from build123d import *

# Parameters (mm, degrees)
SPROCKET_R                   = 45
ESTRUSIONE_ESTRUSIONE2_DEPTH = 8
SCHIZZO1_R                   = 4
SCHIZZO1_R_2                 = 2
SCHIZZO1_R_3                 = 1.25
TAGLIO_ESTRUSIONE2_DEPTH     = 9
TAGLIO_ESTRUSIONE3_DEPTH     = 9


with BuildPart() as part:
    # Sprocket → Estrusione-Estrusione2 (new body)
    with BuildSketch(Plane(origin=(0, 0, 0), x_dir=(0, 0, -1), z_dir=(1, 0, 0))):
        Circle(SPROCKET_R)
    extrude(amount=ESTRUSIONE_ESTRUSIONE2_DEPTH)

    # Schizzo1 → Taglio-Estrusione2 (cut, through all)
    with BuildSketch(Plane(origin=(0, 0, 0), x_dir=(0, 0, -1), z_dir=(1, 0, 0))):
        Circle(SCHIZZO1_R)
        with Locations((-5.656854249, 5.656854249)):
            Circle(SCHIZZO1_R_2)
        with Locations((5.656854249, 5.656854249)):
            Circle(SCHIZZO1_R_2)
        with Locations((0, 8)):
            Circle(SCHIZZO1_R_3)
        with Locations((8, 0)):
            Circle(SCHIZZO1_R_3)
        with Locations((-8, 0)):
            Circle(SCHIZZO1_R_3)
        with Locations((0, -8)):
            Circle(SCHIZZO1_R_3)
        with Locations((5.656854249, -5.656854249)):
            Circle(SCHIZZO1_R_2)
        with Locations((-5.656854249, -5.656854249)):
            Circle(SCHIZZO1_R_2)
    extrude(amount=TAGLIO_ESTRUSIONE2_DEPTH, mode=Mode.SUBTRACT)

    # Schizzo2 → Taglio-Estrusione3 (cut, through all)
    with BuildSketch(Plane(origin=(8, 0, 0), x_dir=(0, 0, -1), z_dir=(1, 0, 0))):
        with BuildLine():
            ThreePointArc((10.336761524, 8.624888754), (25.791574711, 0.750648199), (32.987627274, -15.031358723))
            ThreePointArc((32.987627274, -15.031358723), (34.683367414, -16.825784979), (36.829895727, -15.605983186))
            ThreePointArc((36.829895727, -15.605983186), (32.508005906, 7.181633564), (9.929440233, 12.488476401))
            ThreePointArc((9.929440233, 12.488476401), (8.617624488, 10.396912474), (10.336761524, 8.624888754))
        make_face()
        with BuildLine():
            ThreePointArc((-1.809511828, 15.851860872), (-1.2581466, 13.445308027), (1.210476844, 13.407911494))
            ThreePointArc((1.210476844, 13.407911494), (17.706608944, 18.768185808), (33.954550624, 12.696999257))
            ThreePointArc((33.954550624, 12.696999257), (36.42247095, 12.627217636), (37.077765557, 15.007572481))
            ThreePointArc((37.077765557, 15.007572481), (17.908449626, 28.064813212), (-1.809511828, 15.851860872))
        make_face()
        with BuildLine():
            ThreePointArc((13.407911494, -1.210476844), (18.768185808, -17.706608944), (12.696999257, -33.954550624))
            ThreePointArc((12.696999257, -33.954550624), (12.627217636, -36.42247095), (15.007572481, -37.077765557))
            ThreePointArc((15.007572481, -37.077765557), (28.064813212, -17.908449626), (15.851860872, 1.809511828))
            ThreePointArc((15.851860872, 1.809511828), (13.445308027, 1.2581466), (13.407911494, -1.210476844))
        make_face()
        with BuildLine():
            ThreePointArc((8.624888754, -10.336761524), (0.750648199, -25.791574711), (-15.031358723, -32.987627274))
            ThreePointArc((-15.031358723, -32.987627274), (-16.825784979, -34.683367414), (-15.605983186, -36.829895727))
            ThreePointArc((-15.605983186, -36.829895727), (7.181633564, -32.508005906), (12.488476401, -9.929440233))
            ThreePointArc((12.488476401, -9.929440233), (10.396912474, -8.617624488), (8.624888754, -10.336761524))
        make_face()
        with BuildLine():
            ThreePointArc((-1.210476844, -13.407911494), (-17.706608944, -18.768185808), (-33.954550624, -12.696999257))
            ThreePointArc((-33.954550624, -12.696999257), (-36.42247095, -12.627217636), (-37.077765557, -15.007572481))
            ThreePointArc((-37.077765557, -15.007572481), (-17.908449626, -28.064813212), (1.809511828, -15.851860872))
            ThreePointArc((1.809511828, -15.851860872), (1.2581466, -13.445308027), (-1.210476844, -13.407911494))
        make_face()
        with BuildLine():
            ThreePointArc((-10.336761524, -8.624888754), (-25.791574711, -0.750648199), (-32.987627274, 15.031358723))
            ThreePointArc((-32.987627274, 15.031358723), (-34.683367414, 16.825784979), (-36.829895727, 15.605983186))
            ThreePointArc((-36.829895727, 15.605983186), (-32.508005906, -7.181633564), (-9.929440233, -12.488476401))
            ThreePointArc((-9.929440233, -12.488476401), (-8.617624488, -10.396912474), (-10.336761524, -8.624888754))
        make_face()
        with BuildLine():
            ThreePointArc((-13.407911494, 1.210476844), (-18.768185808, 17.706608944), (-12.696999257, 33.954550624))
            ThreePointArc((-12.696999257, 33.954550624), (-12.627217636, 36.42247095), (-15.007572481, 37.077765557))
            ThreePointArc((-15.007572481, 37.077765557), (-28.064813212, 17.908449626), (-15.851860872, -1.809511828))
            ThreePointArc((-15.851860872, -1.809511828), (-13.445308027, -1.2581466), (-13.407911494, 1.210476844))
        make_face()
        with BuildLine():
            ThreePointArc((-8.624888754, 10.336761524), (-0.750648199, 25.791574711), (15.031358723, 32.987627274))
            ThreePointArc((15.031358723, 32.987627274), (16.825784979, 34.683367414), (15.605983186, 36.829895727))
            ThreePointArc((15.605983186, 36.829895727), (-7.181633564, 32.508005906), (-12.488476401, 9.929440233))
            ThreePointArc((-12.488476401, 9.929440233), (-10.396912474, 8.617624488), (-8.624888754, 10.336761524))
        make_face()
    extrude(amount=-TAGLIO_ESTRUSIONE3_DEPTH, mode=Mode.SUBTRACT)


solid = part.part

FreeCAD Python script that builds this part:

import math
import FreeCAD as App
import Part
import Sketcher
from FreeCAD import Vector

doc = App.newDocument("Part")
body = doc.addObject("PartDesign::Body", "Body")

sketch1 = body.newObject("Sketcher::SketchObject", "Sketch")
sketch1.AttachmentSupport = (doc.getObject("YZ_Plane"), [""])
sketch1.MapMode = "FlatFace"
sketch1.addGeometry(Part.Circle(Vector(0, 0, 0), Vector(0, 0, 1), 45), False)
sketch1.addConstraint([
    Sketcher.Constraint("Coincident", 0, 3, -1, 1),
    Sketcher.Constraint("Diameter", 0, 90.0),
])
pad1 = body.newObject("PartDesign::Pad", "Pad")
pad1.Profile = sketch1
pad1.Length = 8

sketch2 = body.newObject("Sketcher::SketchObject", "Sketch001")
sketch2.AttachmentSupport = (doc.getObject("YZ_Plane"), [""])
sketch2.MapMode = "FlatFace"
sketch2.addGeometry([
    Part.Circle(Vector(0, 0, 0), Vector(0, 0, 1), 4),
    Part.Circle(Vector(5.7, 5.7, 0), Vector(0, 0, 1), 2),
    Part.Circle(Vector(5.7, -5.7, 0), Vector(0, 0, 1), 2),
    Part.Circle(Vector(8, 0, 0), Vector(0, 0, 1), 1.2),
    Part.Circle(Vector(0, -8, 0), Vector(0, 0, 1), 1.2),
    Part.Circle(Vector(0, 8, 0), Vector(0, 0, 1), 1.2),
    Part.Circle(Vector(-8, 0, 0), Vector(0, 0, 1), 1.2),
    Part.Circle(Vector(-5.7, -5.7, 0), Vector(0, 0, 1), 2),
    Part.Circle(Vector(-5.7, 5.7, 0), Vector(0, 0, 1), 2),
], False)
sketch2.addConstraint([
    Sketcher.Constraint("Coincident", 0, 3, -1, 1),
    Sketcher.Constraint("Equal", 1, 2),
    Sketcher.Constraint("Equal", 3, 4),
    Sketcher.Constraint("Equal", 4, 5),
    Sketcher.Constraint("Equal", 5, 6),
    Sketcher.Constraint("Equal", 2, 7),
    Sketcher.Constraint("Equal", 7, 8),
    Sketcher.Constraint("Symmetric", 4, 3, 5, 3, -1, 1),
    Sketcher.Constraint("Symmetric", 3, 3, 6, 3, -1, 1),
    Sketcher.Constraint("Symmetric", 1, 3, 7, 3, -1, 1),
    Sketcher.Constraint("Symmetric", 2, 3, 8, 3, -1, 1),
    Sketcher.Constraint("Symmetric", 2, 3, 7, 3, -2),
    Sketcher.Constraint("PointOnObject", 3, 3, -1),
    Sketcher.Constraint("PointOnObject", 4, 3, -2),
    Sketcher.Constraint("Diameter", 0, 8.0),
    Sketcher.Constraint("Diameter", 1, 4.0),
    Sketcher.Constraint("Diameter", 3, 2.5),
    Sketcher.Constraint("DistanceX", -1, 1, 3, 3, 8.0),
    Sketcher.Constraint("DistanceY", 4, 3, -1, 1, 8.0),
    Sketcher.Constraint("DistanceY", 2, 3, 1, 3, 11.313708),
    Sketcher.Constraint("DistanceX", 7, 3, 2, 3, 11.313708),
])
pocket1 = body.newObject("PartDesign::Pocket", "Pocket")
pocket1.Profile = sketch2
pocket1.Type = "ThroughAll"
pocket1.Reversed = True

sketch3 = body.newObject("Sketcher::SketchObject", "Sketch002")
sketch3.AttachmentSupport = (doc.getObject("YZ_Plane"), [""])
sketch3.MapMode = "FlatFace"
sketch3.AttachmentOffset = App.Placement(Vector(0, 0, 8), App.Rotation())
sketch3.addGeometry([
    Part.ArcOfCircle(Part.Circle(Vector(-17.4, -6.8, 0), Vector(0, 0, 1), 26.3), math.radians(-85), math.radians(-8)),
    Part.ArcOfCircle(Part.Circle(Vector(-14.8, -35, 0), Vector(0, 0, 1), 2), math.radians(95), math.radians(248)),
    Part.ArcOfCircle(Part.Circle(Vector(-7.5, -17.1, 0), Vector(0, 0, 1), 21.3), math.radians(-112), math.radians(20)),
    Part.ArcOfCircle(Part.Circle(Vector(10.6, -10.6, 0), Vector(0, 0, 1), 2), math.radians(20), math.radians(172)),
    Part.ArcOfCircle(Part.Circle(Vector(15, 0, 0), Vector(0, 0, 1), 2), math.radians(65), math.radians(217)),
    Part.ArcOfCircle(Part.Circle(Vector(-7.5, -17.1, 0), Vector(0, 0, 1), 26.3), math.radians(-40), math.radians(37)),
    Part.ArcOfCircle(Part.Circle(Vector(14.2, -35.2, 0), Vector(0, 0, 1), 2), math.radians(140), math.radians(293)),
    Part.ArcOfCircle(Part.Circle(Vector(6.8, -17.4, 0), Vector(0, 0, 1), 21.3), math.radians(-67), math.radians(65)),
    Part.ArcOfCircle(Part.Circle(Vector(-17.1, 7.5, 0), Vector(0, 0, 1), 26.3), math.radians(-130), math.radians(-53)),
    Part.ArcOfCircle(Part.Circle(Vector(-35.2, -14.2, 0), Vector(0, 0, 1), 2), math.radians(50), math.radians(203)),
    Part.ArcOfCircle(Part.Circle(Vector(-17.4, -6.8, 0), Vector(0, 0, 1), 21.3), math.radians(-157), math.radians(-25)),
    Part.ArcOfCircle(Part.Circle(Vector(0, -15, 0), Vector(0, 0, 1), 2), math.radians(-25), math.radians(127)),
    Part.ArcOfCircle(Part.Circle(Vector(-6.8, 17.4, 0), Vector(0, 0, 1), 26.3), math.radians(-175), math.radians(-98)),
    Part.ArcOfCircle(Part.Circle(Vector(-35, 14.8, 0), Vector(0, 0, 1), 2), math.radians(5), math.radians(158)),
    Part.ArcOfCircle(Part.Circle(Vector(-17.1, 7.5, 0), Vector(0, 0, 1), 21.3), math.radians(158), math.radians(290)),
    Part.ArcOfCircle(Part.Circle(Vector(-10.6, -10.6, 0), Vector(0, 0, 1), 2), math.radians(-70), math.radians(82)),
    Part.ArcOfCircle(Part.Circle(Vector(7.5, 17.1, 0), Vector(0, 0, 1), 26.3), math.radians(140), math.radians(217)),
    Part.ArcOfCircle(Part.Circle(Vector(-14.2, 35.2, 0), Vector(0, 0, 1), 2), math.radians(-40), math.radians(113)),
    Part.ArcOfCircle(Part.Circle(Vector(-6.8, 17.4, 0), Vector(0, 0, 1), 21.3), math.radians(113), math.radians(245)),
    Part.ArcOfCircle(Part.Circle(Vector(-15, 0, 0), Vector(0, 0, 1), 2), math.radians(-115), math.radians(37)),
    Part.ArcOfCircle(Part.Circle(Vector(17.4, 6.8, 0), Vector(0, 0, 1), 26.3), math.radians(95), math.radians(172)),
    Part.ArcOfCircle(Part.Circle(Vector(14.8, 35, 0), Vector(0, 0, 1), 2), math.radians(-85), math.radians(68)),
    Part.ArcOfCircle(Part.Circle(Vector(7.5, 17.1, 0), Vector(0, 0, 1), 21.3), math.radians(68), math.radians(200)),
    Part.ArcOfCircle(Part.Circle(Vector(-10.6, 10.6, 0), Vector(0, 0, 1), 2), math.radians(-160), math.radians(-8)),
    Part.ArcOfCircle(Part.Circle(Vector(17.1, -7.5, 0), Vector(0, 0, 1), 26.3), math.radians(50), math.radians(127)),
    Part.ArcOfCircle(Part.Circle(Vector(35.2, 14.2, 0), Vector(0, 0, 1), 2), math.radians(-130), math.radians(23)),
    Part.ArcOfCircle(Part.Circle(Vector(17.4, 6.8, 0), Vector(0, 0, 1), 21.3), math.radians(23), math.radians(155)),
    Part.ArcOfCircle(Part.Circle(Vector(0, 15, 0), Vector(0, 0, 1), 2), math.radians(155), math.radians(307)),
    Part.ArcOfCircle(Part.Circle(Vector(6.8, -17.4, 0), Vector(0, 0, 1), 26.3), math.radians(5), math.radians(82)),
    Part.ArcOfCircle(Part.Circle(Vector(35, -14.8, 0), Vector(0, 0, 1), 2), math.radians(-175), math.radians(-22)),
    Part.ArcOfCircle(Part.Circle(Vector(17.1, -7.5, 0), Vector(0, 0, 1), 21.3), math.radians(-22), math.radians(110)),
    Part.ArcOfCircle(Part.Circle(Vector(10.6, 10.6, 0), Vector(0, 0, 1), 2), math.radians(110), math.radians(262)),
], False)
sketch3.addConstraint([
    Sketcher.Constraint("Tangent", 0, 1, 1, 1),
    Sketcher.Constraint("Tangent", 1, 2, 2, 1),
    Sketcher.Constraint("Tangent", 2, 2, 3, 1),
    Sketcher.Constraint("Tangent", 3, 2, 0, 2),
    Sketcher.Constraint("Tangent", 4, 2, 5, 2),
    Sketcher.Constraint("Tangent", 5, 1, 6, 1),
    Sketcher.Constraint("Tangent", 6, 2, 7, 1),
    Sketcher.Constraint("Tangent", 7, 2, 4, 1),
    Sketcher.Constraint("Tangent", 8, 1, 9, 1),
    Sketcher.Constraint("Tangent", 9, 2, 10, 1),
    Sketcher.Constraint("Tangent", 10, 2, 11, 1),
    Sketcher.Constraint("Tangent", 11, 2, 8, 2),
    Sketcher.Constraint("Tangent", 12, 1, 13, 1),
    Sketcher.Constraint("Tangent", 13, 2, 14, 1),
    Sketcher.Constraint("Tangent", 14, 2, 15, 1),
    Sketcher.Constraint("Tangent", 15, 2, 12, 2),
    Sketcher.Constraint("Tangent", 16, 1, 17, 1),
    Sketcher.Constraint("Tangent", 17, 2, 18, 1),
    Sketcher.Constraint("Tangent", 18, 2, 19, 1),
    Sketcher.Constraint("Tangent", 19, 2, 16, 2),
    Sketcher.Constraint("Tangent", 20, 1, 21, 1),
    Sketcher.Constraint("Tangent", 21, 2, 22, 1),
    Sketcher.Constraint("Tangent", 22, 2, 23, 1),
    Sketcher.Constraint("Tangent", 23, 2, 20, 2),
    Sketcher.Constraint("Tangent", 24, 1, 25, 1),
    Sketcher.Constraint("Tangent", 25, 2, 26, 1),
    Sketcher.Constraint("Tangent", 26, 2, 27, 1),
    Sketcher.Constraint("Tangent", 27, 2, 24, 2),
    Sketcher.Constraint("Tangent", 28, 1, 29, 1),
    Sketcher.Constraint("Tangent", 29, 2, 30, 1),
    Sketcher.Constraint("Tangent", 30, 2, 31, 1),
    Sketcher.Constraint("Tangent", 31, 2, 28, 2),
    Sketcher.Constraint("Coincident", 5, 3, 2, 3),
    Sketcher.Constraint("Coincident", 10, 3, 0, 3),
    Sketcher.Constraint("Coincident", 14, 3, 8, 3),
    Sketcher.Constraint("Coincident", 18, 3, 12, 3),
    Sketcher.Constraint("Coincident", 22, 3, 16, 3),
    Sketcher.Constraint("Coincident", 26, 3, 20, 3),
    Sketcher.Constraint("Coincident", 28, 3, 7, 3),
    Sketcher.Constraint("Coincident", 30, 3, 24, 3),
    Sketcher.Constraint("Equal", 1, 3),
    Sketcher.Constraint("Equal", 3, 4),
    Sketcher.Constraint("Equal", 0, 5),
    Sketcher.Constraint("Equal", 4, 6),
    Sketcher.Constraint("Equal", 2, 7),
    Sketcher.Constraint("Equal", 5, 8),
    Sketcher.Constraint("Equal", 6, 9),
    Sketcher.Constraint("Equal", 7, 10),
    Sketcher.Constraint("Equal", 9, 11),
    Sketcher.Constraint("Equal", 8, 12),
    Sketcher.Constraint("Equal", 11, 13),
    Sketcher.Constraint("Equal", 10, 14),
    Sketcher.Constraint("Equal", 13, 15),
    Sketcher.Constraint("Equal", 12, 16),
    Sketcher.Constraint("Equal", 15, 17),
    Sketcher.Constraint("Equal", 14, 18),
    Sketcher.Constraint("Equal", 17, 19),
    Sketcher.Constraint("Equal", 16, 20),
    Sketcher.Constraint("Equal", 19, 21),
    Sketcher.Constraint("Equal", 18, 22),
    Sketcher.Constraint("Equal", 21, 23),
    Sketcher.Constraint("Equal", 20, 24),
    Sketcher.Constraint("Equal", 23, 25),
    Sketcher.Constraint("Equal", 22, 26),
    Sketcher.Constraint("Equal", 25, 27),
    Sketcher.Constraint("Equal", 24, 28),
    Sketcher.Constraint("Equal", 27, 29),
    Sketcher.Constraint("Equal", 26, 30),
    Sketcher.Constraint("Equal", 29, 31),
    Sketcher.Constraint("Symmetric", 7, 3, 12, 3, -1, 1),
    Sketcher.Constraint("Symmetric", 2, 3, 16, 3, -1, 1),
    Sketcher.Constraint("Symmetric", 0, 3, 20, 3, -1, 1),
    Sketcher.Constraint("Symmetric", 8, 3, 24, 3, -1, 1),
    Sketcher.Constraint("Symmetric", 3, 3, 15, 3, -2),
    Sketcher.Constraint("PointOnObject", 4, 3, -1),
    Sketcher.Constraint("PointOnObject", 11, 3, -2),
    Sketcher.Constraint("Radius", 1, 2.0),
    Sketcher.Constraint("DistanceX", -1, 1, 4, 3, 15.0),
    Sketcher.Constraint("DistanceY", 11, 3, -1, 1, 15.0),
    Sketcher.Constraint("Radius", 0, 26.31195),
    Sketcher.Constraint("DistanceX", -1, 1, 5, 1, 12.696999),
    Sketcher.Constraint("DistanceY", 8, 1, -1, 1, 12.696999),
    Sketcher.Constraint("Radius", 2, 21.283077),
])
pocket2 = body.newObject("PartDesign::Pocket", "Pocket001")
pocket2.Profile = sketch3
pocket2.Type = "ThroughAll"

doc.recompute()
